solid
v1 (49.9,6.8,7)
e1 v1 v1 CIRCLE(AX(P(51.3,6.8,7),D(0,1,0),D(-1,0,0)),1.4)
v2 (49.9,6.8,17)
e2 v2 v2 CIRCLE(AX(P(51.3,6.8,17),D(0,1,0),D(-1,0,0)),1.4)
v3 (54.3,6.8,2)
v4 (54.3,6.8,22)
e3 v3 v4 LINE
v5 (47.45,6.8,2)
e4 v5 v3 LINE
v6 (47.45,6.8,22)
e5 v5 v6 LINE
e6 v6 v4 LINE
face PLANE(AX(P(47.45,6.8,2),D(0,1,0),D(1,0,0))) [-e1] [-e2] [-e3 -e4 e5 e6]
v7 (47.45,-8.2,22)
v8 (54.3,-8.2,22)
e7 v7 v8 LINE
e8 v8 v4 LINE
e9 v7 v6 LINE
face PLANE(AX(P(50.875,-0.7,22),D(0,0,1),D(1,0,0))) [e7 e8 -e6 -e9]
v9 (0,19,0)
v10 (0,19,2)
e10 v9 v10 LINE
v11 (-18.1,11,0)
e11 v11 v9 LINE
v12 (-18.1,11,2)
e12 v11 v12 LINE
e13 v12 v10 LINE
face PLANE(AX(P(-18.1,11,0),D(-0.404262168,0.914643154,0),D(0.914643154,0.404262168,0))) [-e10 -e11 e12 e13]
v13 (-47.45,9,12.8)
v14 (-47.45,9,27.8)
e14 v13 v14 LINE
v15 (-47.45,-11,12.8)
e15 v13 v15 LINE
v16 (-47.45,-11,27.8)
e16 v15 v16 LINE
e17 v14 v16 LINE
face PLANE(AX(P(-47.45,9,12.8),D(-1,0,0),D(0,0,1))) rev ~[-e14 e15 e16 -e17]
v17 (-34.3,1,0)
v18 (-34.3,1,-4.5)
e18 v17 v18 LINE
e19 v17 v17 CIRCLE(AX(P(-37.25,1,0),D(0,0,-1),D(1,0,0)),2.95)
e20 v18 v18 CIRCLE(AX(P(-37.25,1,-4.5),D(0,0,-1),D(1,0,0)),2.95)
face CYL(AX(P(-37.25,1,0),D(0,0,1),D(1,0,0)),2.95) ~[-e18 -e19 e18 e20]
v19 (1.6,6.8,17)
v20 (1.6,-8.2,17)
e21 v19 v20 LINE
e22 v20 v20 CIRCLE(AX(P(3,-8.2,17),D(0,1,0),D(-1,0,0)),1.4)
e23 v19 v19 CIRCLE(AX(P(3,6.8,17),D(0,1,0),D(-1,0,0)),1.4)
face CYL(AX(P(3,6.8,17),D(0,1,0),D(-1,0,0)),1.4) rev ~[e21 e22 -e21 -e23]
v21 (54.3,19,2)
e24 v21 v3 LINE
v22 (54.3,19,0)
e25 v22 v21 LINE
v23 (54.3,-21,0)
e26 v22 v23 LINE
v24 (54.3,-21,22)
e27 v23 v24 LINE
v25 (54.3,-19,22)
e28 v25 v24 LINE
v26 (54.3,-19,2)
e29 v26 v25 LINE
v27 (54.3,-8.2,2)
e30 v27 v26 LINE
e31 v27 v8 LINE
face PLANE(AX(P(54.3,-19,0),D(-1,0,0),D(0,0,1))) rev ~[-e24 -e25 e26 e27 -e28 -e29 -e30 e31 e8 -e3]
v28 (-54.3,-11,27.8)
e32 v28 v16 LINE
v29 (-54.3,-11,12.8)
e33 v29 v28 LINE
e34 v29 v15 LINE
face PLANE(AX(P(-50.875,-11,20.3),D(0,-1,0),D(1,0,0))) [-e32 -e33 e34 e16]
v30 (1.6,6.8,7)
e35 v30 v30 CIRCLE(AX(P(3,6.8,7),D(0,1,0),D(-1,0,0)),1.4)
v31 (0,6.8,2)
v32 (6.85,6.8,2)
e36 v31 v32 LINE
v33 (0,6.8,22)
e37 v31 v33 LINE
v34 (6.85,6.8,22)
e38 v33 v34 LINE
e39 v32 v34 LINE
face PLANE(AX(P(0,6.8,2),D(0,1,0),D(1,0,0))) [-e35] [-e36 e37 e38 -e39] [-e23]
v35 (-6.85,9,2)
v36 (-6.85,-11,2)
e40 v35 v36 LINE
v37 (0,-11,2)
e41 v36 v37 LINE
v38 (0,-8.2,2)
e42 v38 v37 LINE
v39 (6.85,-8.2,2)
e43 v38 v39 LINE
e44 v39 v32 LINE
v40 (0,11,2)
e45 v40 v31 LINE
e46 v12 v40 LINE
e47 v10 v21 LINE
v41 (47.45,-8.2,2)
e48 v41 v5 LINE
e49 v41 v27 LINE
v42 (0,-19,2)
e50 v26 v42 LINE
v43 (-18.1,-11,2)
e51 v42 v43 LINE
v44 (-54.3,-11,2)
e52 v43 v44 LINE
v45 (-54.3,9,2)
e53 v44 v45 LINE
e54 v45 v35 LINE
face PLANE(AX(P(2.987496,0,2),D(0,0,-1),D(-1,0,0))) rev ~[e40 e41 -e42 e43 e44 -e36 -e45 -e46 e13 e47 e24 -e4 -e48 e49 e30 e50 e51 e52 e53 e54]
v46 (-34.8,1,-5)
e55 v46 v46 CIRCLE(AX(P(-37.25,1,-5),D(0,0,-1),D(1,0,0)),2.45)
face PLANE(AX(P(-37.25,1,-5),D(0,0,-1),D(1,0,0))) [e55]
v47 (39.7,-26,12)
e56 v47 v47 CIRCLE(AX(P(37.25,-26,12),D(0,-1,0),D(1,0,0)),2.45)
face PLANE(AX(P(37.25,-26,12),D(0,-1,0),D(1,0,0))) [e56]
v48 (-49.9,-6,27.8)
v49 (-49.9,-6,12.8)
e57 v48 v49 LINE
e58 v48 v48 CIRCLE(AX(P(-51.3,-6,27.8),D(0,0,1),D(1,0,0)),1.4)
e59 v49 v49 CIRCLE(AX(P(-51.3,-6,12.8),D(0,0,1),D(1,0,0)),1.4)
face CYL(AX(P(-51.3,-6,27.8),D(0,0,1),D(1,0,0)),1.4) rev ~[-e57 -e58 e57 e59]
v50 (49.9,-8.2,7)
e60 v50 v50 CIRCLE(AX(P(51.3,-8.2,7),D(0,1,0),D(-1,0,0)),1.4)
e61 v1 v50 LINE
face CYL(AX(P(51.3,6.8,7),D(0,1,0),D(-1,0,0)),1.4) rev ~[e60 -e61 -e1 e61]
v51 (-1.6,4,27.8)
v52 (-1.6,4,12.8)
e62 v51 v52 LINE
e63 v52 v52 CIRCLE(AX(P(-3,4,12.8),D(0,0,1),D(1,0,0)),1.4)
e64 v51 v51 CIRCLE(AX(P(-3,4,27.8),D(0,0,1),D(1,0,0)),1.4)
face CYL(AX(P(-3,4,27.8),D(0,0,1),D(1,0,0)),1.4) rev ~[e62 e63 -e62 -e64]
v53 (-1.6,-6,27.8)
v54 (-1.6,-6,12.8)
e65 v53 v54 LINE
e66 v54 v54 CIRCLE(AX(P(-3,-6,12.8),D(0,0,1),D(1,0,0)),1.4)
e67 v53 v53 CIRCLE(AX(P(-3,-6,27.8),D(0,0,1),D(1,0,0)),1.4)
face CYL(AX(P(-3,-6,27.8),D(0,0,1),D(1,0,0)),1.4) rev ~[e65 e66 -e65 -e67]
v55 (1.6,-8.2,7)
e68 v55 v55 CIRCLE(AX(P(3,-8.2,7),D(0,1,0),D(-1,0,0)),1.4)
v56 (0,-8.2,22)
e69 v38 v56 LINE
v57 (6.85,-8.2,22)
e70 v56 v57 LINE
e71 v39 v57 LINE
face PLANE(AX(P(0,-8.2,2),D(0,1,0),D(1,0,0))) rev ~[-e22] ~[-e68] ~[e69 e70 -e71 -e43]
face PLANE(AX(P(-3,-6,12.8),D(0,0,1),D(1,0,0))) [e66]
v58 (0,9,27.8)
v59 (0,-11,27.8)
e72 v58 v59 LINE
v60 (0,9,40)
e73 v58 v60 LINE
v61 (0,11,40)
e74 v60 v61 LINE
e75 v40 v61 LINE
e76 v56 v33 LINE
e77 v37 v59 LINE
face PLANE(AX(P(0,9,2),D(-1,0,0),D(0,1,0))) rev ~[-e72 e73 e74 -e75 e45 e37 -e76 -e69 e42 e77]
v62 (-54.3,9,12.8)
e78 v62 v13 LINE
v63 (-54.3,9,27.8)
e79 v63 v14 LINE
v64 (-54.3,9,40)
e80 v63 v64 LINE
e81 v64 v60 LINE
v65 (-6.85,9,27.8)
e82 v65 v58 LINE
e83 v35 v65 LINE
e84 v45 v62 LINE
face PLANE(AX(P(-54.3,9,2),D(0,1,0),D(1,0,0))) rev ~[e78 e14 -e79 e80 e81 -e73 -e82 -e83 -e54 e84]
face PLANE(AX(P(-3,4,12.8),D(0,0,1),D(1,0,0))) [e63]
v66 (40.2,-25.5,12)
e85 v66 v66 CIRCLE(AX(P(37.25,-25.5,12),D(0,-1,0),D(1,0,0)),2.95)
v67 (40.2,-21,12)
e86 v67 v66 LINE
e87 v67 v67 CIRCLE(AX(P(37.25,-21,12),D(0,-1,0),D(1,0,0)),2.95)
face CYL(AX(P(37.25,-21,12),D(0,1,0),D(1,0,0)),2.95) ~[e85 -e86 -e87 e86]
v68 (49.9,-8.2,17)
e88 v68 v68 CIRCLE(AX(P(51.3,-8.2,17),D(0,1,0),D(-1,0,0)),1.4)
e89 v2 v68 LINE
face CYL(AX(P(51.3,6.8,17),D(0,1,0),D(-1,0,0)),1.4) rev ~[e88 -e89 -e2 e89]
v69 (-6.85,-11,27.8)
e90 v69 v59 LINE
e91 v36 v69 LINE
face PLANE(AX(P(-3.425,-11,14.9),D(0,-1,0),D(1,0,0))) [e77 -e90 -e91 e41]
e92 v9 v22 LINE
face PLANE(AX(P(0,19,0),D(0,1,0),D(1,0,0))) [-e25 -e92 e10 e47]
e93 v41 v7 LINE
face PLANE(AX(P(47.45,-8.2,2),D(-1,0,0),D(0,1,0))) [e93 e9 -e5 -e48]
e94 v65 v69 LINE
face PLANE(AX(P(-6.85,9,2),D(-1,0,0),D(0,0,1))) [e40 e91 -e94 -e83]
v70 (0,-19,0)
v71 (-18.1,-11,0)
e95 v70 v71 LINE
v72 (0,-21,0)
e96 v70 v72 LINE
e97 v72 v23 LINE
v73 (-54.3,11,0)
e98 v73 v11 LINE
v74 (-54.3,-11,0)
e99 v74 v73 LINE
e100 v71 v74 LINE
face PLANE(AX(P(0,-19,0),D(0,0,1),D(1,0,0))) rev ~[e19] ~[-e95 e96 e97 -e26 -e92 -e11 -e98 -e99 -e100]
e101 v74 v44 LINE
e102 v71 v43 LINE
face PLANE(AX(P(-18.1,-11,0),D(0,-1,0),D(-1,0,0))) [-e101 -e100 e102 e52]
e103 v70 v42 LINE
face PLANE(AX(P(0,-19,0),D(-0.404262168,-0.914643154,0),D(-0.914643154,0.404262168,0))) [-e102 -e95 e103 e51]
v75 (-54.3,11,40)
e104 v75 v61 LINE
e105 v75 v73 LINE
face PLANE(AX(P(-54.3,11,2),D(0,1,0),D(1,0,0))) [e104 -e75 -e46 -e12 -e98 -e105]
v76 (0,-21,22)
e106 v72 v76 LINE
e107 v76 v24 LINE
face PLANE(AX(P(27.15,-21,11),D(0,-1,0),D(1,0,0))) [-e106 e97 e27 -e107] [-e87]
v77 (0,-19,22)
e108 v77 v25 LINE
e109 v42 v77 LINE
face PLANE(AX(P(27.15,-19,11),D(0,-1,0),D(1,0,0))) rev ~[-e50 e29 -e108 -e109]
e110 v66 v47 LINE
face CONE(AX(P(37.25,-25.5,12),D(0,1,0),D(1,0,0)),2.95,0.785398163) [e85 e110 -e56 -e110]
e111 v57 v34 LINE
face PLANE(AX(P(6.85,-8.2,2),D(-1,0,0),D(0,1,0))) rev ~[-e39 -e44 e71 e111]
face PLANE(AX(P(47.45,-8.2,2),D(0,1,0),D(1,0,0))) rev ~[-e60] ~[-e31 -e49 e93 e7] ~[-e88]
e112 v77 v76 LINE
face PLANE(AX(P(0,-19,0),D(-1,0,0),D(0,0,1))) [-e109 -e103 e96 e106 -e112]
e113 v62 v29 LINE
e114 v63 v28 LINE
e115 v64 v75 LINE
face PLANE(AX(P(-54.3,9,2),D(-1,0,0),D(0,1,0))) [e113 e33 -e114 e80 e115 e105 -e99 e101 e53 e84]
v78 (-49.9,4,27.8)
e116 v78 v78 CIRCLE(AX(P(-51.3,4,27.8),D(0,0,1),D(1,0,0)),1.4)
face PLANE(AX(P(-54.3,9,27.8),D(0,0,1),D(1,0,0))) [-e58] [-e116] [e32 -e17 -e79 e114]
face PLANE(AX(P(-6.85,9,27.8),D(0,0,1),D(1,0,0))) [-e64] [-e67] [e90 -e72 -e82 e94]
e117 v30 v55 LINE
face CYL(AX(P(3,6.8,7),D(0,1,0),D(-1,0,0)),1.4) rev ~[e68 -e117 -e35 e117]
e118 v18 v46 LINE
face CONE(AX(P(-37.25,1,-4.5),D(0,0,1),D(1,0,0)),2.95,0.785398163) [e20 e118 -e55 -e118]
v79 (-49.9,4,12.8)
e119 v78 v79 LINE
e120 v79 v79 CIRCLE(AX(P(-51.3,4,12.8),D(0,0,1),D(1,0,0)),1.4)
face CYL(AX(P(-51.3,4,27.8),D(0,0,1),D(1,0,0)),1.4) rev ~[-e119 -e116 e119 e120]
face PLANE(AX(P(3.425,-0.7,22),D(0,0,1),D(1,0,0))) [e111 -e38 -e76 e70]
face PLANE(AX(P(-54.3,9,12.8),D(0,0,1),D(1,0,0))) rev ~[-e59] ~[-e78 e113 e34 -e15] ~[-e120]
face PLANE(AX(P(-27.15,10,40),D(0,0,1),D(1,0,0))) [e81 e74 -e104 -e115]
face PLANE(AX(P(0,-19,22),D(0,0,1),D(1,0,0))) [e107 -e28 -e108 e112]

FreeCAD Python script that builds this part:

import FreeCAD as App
import Part
import Sketcher
from FreeCAD import Vector


def edges_at(feature, points):
    """Names of the edges that pass closest to the given points."""
    edges = feature.Shape.Edges
    near = lambda p: min(range(len(edges)), key=lambda i: edges[i].distToShape(Part.Vertex(*p))[0])
    return sorted({f"Edge{near(p) + 1}" for p in points})


def add_polygon(sketch, points):
    """Adds a closed chain of lines whose ends are joined by coincident constraints."""
    first, n = sketch.GeometryCount, len(points)
    for a, b in zip(points, points[1:] + points[:1]):
        sketch.addGeometry(Part.LineSegment(App.Vector(*a, 0), App.Vector(*b, 0)), False)
    for i in range(n):
        sketch.addConstraint(Sketcher.Constraint("Coincident", first + i, 2, first + (i + 1) % n, 1))

doc = App.newDocument("Part")
body = doc.addObject("PartDesign::Body", "Body")

# Sketch on XY plane
sketch1 = body.newObject("Sketcher::SketchObject", "Sketch")
sketch1.AttachmentSupport = (doc.getObject("XY_Plane"), [""])
sketch1.MapMode = "FlatFace"
add_polygon(sketch1, [(54, -19), (54, 19), (0, 19), (-18, 11), (-54, 11), (-54, -11), (-18, -11), (0, -19)])  # lines 0-7
sketch1.addConstraint([
    Sketcher.Constraint("Vertical", 0),
    Sketcher.Constraint("Horizontal", 1),
    Sketcher.Constraint("Horizontal", 3),
    Sketcher.Constraint("Vertical", 4),
    Sketcher.Constraint("Horizontal", 5),
    Sketcher.Constraint("Horizontal", 7),
    Sketcher.Constraint("Symmetric", 1, 2, 6, 2, -1, 1),
    Sketcher.Constraint("Symmetric", 2, 2, 5, 2, -1),
    Sketcher.Constraint("PointOnObject", 1, 2, -2),
    Sketcher.Constraint("DistanceY", 0, 1, 0, 2, 38.0),
    Sketcher.Constraint("DistanceY", 4, 2, 4, 1, 22.0),
    Sketcher.Constraint("DistanceX", 1, 2, 1, 1, 54.3),
    Sketcher.Constraint("DistanceX", 3, 2, 3, 1, 36.2),
    Sketcher.Constraint("DistanceX", 2, 2, -1, 1, 18.1),
])
pad1 = body.newObject("PartDesign::Pad", "Pad")
pad1.Profile = sketch1
pad1.Length = 2

# Sketch on XZ plane
sketch2 = body.newObject("Sketcher::SketchObject", "Sketch001")
sketch2.AttachmentSupport = (doc.getObject("XZ_Plane"), [""])
sketch2.MapMode = "FlatFace"
sketch2.AttachmentOffset = App.Placement(Vector(0, 0, 19), App.Rotation())
add_polygon(sketch2, [(0, 22), (0, 0), (54, 0), (54, 22)])  # lines 0-3
sketch2.addConstraint([
    Sketcher.Constraint("Vertical", 0),
    Sketcher.Constraint("Horizontal", 1),
    Sketcher.Constraint("Vertical", 2),
    Sketcher.Constraint("Horizontal", 3),
    Sketcher.Constraint("Coincident", 0, 2, -1, 1),
    Sketcher.Constraint("DistanceY", 0, 2, 0, 1, 22.0),
    Sketcher.Constraint("DistanceX", 1, 1, 1, 2, 54.3),
])
pad2 = body.newObject("PartDesign::Pad", "Pad001")
pad2.Profile = sketch2
pad2.Length = 2

# Sketch on XZ plane
sketch3 = body.newObject("Sketcher::SketchObject", "Sketch002")
sketch3.AttachmentSupport = (doc.getObject("XZ_Plane"), [""])
sketch3.MapMode = "FlatFace"
sketch3.AttachmentOffset = App.Placement(Vector(0, 0, 21), App.Rotation())
sketch3.addGeometry(Part.Circle(Vector(37.2, 12, 0), Vector(0, 0, 1), 3), False)
sketch3.addConstraint([
    Sketcher.Constraint("Diameter", 0, 5.9),
    Sketcher.Constraint("DistanceY", -1, 1, 0, 3, 12.0),
    Sketcher.Constraint("DistanceX", -1, 1, 0, 3, 37.25),
])
pad3 = body.newObject("PartDesign::Pad", "Pad002")
pad3.Profile = sketch3
pad3.Length = 5
doc.recompute()

chamfer = body.newObject("PartDesign::Chamfer", "Chamfer")
chamfer.Base = (pad3, edges_at(pad3, [(34.3, -26, 12)]))
chamfer.Size = 0.5

# Sketch on XY plane
sketch4 = body.newObject("Sketcher::SketchObject", "Sketch003")
sketch4.AttachmentSupport = (doc.getObject("XY_Plane"), [""])
sketch4.MapMode = "FlatFace"
sketch4.AttachmentOffset = App.Placement(Vector(0, 0, 2), App.Rotation())
add_polygon(sketch4, [(0, 7), (0, -8), (7, -8), (7, 7)])  # lines 0-3
sketch4.addConstraint([
    Sketcher.Constraint("Vertical", 0),
    Sketcher.Constraint("Horizontal", 1),
    Sketcher.Constraint("Vertical", 2),
    Sketcher.Constraint("Horizontal", 3),
    Sketcher.Constraint("PointOnObject", 0, 2, -2),
    Sketcher.Constraint("DistanceY", 0, 2, 0, 1, 15.0),
    Sketcher.Constraint("DistanceX", 1, 1, 1, 2, 6.85),
    Sketcher.Constraint("DistanceY", 0, 2, -1, 1, 8.2),
])
pad4 = body.newObject("PartDesign::Pad", "Pad003")
pad4.Profile = sketch4
pad4.Length = 20

# Sketch on XZ plane
sketch5 = body.newObject("Sketcher::SketchObject", "Sketch004")
sketch5.AttachmentSupport = (doc.getObject("XZ_Plane"), [""])
sketch5.MapMode = "FlatFace"
sketch5.AttachmentOffset = App.Placement(Vector(0, 0, -6.8), App.Rotation())
sketch5.addGeometry([
    Part.Circle(Vector(3, 17, 0), Vector(0, 0, 1), 1.4),
    Part.Circle(Vector(3, 7, 0), Vector(0, 0, 1), 1.4),
], False)
sketch5.addConstraint([
    Sketcher.Constraint("Equal", 0, 1),
    Sketcher.Constraint("Vertical", 0, 3, 1, 3),
    Sketcher.Constraint("Diameter", 0, 2.8),
    Sketcher.Constraint("DistanceX", -1, 1, 0, 3, 3.0),
    Sketcher.Constraint("DistanceY", -1, 1, 0, 3, 17.0),
    Sketcher.Constraint("DistanceY", -1, 1, 1, 3, 7.0),
])
pocket1 = body.newObject("PartDesign::Pocket", "Pocket")
pocket1.Profile = sketch5
pocket1.Length = 15
pocket1.Reversed = True

# Sketch on XY plane
sketch6 = body.newObject("Sketcher::SketchObject", "Sketch005")
sketch6.AttachmentSupport = (doc.getObject("XY_Plane"), [""])
sketch6.MapMode = "FlatFace"
sketch6.AttachmentOffset = App.Placement(Vector(0, 0, 2), App.Rotation())
add_polygon(sketch6, [(47, 7), (47, -8), (54, -8), (54, 7)])  # lines 0-3
sketch6.addConstraint([
    Sketcher.Constraint("Vertical", 0),
    Sketcher.Constraint("Horizontal", 1),
    Sketcher.Constraint("Vertical", 2),
    Sketcher.Constraint("Horizontal", 3),
    Sketcher.Constraint("DistanceY", 0, 2, 0, 1, 15.0),
    Sketcher.Constraint("DistanceX", 1, 1, 1, 2, 6.85),
    Sketcher.Constraint("DistanceY", 0, 2, -1, 1, 8.2),
    Sketcher.Constraint("DistanceX", -1, 1, 1, 2, 54.3),
])
pad5 = body.newObject("PartDesign::Pad", "Pad004")
pad5.Profile = sketch6
pad5.Length = 20

# Sketch on XZ plane
sketch7 = body.newObject("Sketcher::SketchObject", "Sketch006")
sketch7.AttachmentSupport = (doc.getObject("XZ_Plane"), [""])
sketch7.MapMode = "FlatFace"
sketch7.AttachmentOffset = App.Placement(Vector(0, 0, -6.8), App.Rotation())
sketch7.addGeometry([
    Part.Circle(Vector(51.3, 17, 0), Vector(0, 0, 1), 1.4),
    Part.Circle(Vector(51.3, 7, 0), Vector(0, 0, 1), 1.4),
], False)
sketch7.addConstraint([
    Sketcher.Constraint("Equal", 0, 1),
    Sketcher.Constraint("Vertical", 0, 3, 1, 3),
    Sketcher.Constraint("Diameter", 0, 2.8),
    Sketcher.Constraint("DistanceY", -1, 1, 0, 3, 17.0),
    Sketcher.Constraint("DistanceY", -1, 1, 1, 3, 7.0),
    Sketcher.Constraint("DistanceX", -1, 1, 0, 3, 51.3),
])
pocket2 = body.newObject("PartDesign::Pocket", "Pocket001")
pocket2.Profile = sketch7
pocket2.Length = 15
pocket2.Reversed = True

# Sketch on XY plane
sketch8 = body.newObject("Sketcher::SketchObject", "Sketch007")
sketch8.AttachmentSupport = (doc.getObject("XY_Plane"), [""])
sketch8.MapMode = "FlatFace"
sketch8.AttachmentOffset = App.Placement(Vector(0, 0, 2), App.Rotation())
add_polygon(sketch8, [(-54.3, 11), (-54.3, 9), (0, 9), (0, 11)])  # lines 0-3
sketch8.addConstraint([
    Sketcher.Constraint("Vertical", 0),
    Sketcher.Constraint("Horizontal", 1),
    Sketcher.Constraint("Vertical", 2),
    Sketcher.Constraint("Horizontal", 3),
    Sketcher.Constraint("PointOnObject", 1, 2, -2),
    Sketcher.Constraint("DistanceY", 0, 2, 0, 1, 2.0),
    Sketcher.Constraint("DistanceX", 1, 1, 1, 2, 54.3),
    Sketcher.Constraint("DistanceY", -1, 1, 0, 2, 9.0),
])
pad6 = body.newObject("PartDesign::Pad", "Pad005")
pad6.Profile = sketch8
pad6.Length = 38

# Sketch on XZ plane
sketch9 = body.newObject("Sketcher::SketchObject", "Sketch008")
sketch9.AttachmentSupport = (doc.getObject("XZ_Plane"), [""])
sketch9.MapMode = "FlatFace"
sketch9.AttachmentOffset = App.Placement(Vector(0, 0, -9), App.Rotation())
add_polygon(sketch9, [(-54, 28), (-54, 13), (-47, 13), (-47, 28)])  # lines 0-3
sketch9.addConstraint([
    Sketcher.Constraint("Vertical", 0),
    Sketcher.Constraint("Horizontal", 1),
    Sketcher.Constraint("Vertical", 2),
    Sketcher.Constraint("Horizontal", 3),
    Sketcher.Constraint("DistanceY", 0, 2, 0, 1, 15.0),
    Sketcher.Constraint("DistanceX", 1, 1, 1, 2, 6.85),
    Sketcher.Constraint("DistanceX", 0, 2, -1, 1, 54.3),
    Sketcher.Constraint("DistanceY", -1, 1, 0, 2, 12.8),
])
pad7 = body.newObject("PartDesign::Pad", "Pad006")
pad7.Profile = sketch9
pad7.Length = 20

# Sketch on XY plane
sketch10 = body.newObject("Sketcher::SketchObject", "Sketch009")
sketch10.AttachmentSupport = (doc.getObject("XY_Plane"), [""])
sketch10.MapMode = "FlatFace"
sketch10.AttachmentOffset = App.Placement(Vector(0, 0, 27.8), App.Rotation())
sketch10.addGeometry([
    Part.Circle(Vector(-51.3, -6, 0), Vector(0, 0, 1), 1.4),
    Part.Circle(Vector(-51.3, 4, 0), Vector(0, 0, 1), 1.4),
], False)
sketch10.addConstraint([
    Sketcher.Constraint("Equal", 0, 1),
    Sketcher.Constraint("Vertical", 0, 3, 1, 3),
    Sketcher.Constraint("Diameter", 0, 2.8),
    Sketcher.Constraint("DistanceY", 0, 3, -1, 1, 6.0),
    Sketcher.Constraint("DistanceY", -1, 1, 1, 3, 4.0),
    Sketcher.Constraint("DistanceX", 0, 3, -1, 1, 51.3),
])
pocket3 = body.newObject("PartDesign::Pocket", "Pocket002")
pocket3.Profile = sketch10
pocket3.Length = 15

# Sketch on XZ plane
sketch11 = body.newObject("Sketcher::SketchObject", "Sketch010")
sketch11.AttachmentSupport = (doc.getObject("XZ_Plane"), [""])
sketch11.MapMode = "FlatFace"
sketch11.AttachmentOffset = App.Placement(Vector(0, 0, -9), App.Rotation())
add_polygon(sketch11, [(-7, 28), (-7, 2), (0, 2), (0, 28)])  # lines 0-3
sketch11.addConstraint([
    Sketcher.Constraint("Vertical", 0),
    Sketcher.Constraint("Horizontal", 1),
    Sketcher.Constraint("Vertical", 2),
    Sketcher.Constraint("Horizontal", 3),
    Sketcher.Constraint("PointOnObject", 1, 2, -2),
    Sketcher.Constraint("DistanceY", 0, 2, 0, 1, 25.8),
    Sketcher.Constraint("DistanceY", -1, 1, 0, 2, 2.0),
    Sketcher.Constraint("DistanceX", 1, 1, 1, 2, 6.85),
])
pad8 = body.newObject("PartDesign::Pad", "Pad007")
pad8.Profile = sketch11
pad8.Length = 20

# Sketch on XY plane
sketch12 = body.newObject("Sketcher::SketchObject", "Sketch011")
sketch12.AttachmentSupport = (doc.getObject("XY_Plane"), [""])
sketch12.MapMode = "FlatFace"
sketch12.AttachmentOffset = App.Placement(Vector(0, 0, 27.8), App.Rotation())
sketch12.addGeometry([
    Part.Circle(Vector(-3, -6, 0), Vector(0, 0, 1), 1.4),
    Part.Circle(Vector(-3, 4, 0), Vector(0, 0, 1), 1.4),
], False)
sketch12.addConstraint([
    Sketcher.Constraint("Equal", 0, 1),
    Sketcher.Constraint("Vertical", 0, 3, 1, 3),
    Sketcher.Constraint("Diameter", 0, 2.8),
    Sketcher.Constraint("DistanceX", 0, 3, -1, 1, 3.0),
    Sketcher.Constraint("DistanceY", 0, 3, -1, 1, 6.0),
    Sketcher.Constraint("DistanceY", -1, 1, 1, 3, 4.0),
])
pocket4 = body.newObject("PartDesign::Pocket", "Pocket003")
pocket4.Profile = sketch12
pocket4.Length = 15

# Sketch on XY plane
sketch13 = body.newObject("Sketcher::SketchObject", "Sketch012")
sketch13.AttachmentSupport = (doc.getObject("XY_Plane"), [""])
sketch13.MapMode = "FlatFace"
sketch13.addGeometry(Part.Circle(Vector(-37.2, 1, 0), Vector(0, 0, 1), 3), False)
sketch13.addConstraint([
    Sketcher.Constraint("Diameter", 0, 5.9),
    Sketcher.Constraint("DistanceY", -1, 1, 0, 3, 1.0),
    Sketcher.Constraint("DistanceX", 0, 3, -1, 1, 37.25),
])
pad9 = body.newObject("PartDesign::Pad", "Pad008")
pad9.Profile = sketch13
pad9.Length = 5
pad9.Reversed = True
doc.recompute()

chamfer2 = body.newObject("PartDesign::Chamfer", "Chamfer001")
chamfer2.Base = (pad9, edges_at(pad9, [(-40.2, 1, -5)]))
chamfer2.Size = 0.5

doc.recompute()
